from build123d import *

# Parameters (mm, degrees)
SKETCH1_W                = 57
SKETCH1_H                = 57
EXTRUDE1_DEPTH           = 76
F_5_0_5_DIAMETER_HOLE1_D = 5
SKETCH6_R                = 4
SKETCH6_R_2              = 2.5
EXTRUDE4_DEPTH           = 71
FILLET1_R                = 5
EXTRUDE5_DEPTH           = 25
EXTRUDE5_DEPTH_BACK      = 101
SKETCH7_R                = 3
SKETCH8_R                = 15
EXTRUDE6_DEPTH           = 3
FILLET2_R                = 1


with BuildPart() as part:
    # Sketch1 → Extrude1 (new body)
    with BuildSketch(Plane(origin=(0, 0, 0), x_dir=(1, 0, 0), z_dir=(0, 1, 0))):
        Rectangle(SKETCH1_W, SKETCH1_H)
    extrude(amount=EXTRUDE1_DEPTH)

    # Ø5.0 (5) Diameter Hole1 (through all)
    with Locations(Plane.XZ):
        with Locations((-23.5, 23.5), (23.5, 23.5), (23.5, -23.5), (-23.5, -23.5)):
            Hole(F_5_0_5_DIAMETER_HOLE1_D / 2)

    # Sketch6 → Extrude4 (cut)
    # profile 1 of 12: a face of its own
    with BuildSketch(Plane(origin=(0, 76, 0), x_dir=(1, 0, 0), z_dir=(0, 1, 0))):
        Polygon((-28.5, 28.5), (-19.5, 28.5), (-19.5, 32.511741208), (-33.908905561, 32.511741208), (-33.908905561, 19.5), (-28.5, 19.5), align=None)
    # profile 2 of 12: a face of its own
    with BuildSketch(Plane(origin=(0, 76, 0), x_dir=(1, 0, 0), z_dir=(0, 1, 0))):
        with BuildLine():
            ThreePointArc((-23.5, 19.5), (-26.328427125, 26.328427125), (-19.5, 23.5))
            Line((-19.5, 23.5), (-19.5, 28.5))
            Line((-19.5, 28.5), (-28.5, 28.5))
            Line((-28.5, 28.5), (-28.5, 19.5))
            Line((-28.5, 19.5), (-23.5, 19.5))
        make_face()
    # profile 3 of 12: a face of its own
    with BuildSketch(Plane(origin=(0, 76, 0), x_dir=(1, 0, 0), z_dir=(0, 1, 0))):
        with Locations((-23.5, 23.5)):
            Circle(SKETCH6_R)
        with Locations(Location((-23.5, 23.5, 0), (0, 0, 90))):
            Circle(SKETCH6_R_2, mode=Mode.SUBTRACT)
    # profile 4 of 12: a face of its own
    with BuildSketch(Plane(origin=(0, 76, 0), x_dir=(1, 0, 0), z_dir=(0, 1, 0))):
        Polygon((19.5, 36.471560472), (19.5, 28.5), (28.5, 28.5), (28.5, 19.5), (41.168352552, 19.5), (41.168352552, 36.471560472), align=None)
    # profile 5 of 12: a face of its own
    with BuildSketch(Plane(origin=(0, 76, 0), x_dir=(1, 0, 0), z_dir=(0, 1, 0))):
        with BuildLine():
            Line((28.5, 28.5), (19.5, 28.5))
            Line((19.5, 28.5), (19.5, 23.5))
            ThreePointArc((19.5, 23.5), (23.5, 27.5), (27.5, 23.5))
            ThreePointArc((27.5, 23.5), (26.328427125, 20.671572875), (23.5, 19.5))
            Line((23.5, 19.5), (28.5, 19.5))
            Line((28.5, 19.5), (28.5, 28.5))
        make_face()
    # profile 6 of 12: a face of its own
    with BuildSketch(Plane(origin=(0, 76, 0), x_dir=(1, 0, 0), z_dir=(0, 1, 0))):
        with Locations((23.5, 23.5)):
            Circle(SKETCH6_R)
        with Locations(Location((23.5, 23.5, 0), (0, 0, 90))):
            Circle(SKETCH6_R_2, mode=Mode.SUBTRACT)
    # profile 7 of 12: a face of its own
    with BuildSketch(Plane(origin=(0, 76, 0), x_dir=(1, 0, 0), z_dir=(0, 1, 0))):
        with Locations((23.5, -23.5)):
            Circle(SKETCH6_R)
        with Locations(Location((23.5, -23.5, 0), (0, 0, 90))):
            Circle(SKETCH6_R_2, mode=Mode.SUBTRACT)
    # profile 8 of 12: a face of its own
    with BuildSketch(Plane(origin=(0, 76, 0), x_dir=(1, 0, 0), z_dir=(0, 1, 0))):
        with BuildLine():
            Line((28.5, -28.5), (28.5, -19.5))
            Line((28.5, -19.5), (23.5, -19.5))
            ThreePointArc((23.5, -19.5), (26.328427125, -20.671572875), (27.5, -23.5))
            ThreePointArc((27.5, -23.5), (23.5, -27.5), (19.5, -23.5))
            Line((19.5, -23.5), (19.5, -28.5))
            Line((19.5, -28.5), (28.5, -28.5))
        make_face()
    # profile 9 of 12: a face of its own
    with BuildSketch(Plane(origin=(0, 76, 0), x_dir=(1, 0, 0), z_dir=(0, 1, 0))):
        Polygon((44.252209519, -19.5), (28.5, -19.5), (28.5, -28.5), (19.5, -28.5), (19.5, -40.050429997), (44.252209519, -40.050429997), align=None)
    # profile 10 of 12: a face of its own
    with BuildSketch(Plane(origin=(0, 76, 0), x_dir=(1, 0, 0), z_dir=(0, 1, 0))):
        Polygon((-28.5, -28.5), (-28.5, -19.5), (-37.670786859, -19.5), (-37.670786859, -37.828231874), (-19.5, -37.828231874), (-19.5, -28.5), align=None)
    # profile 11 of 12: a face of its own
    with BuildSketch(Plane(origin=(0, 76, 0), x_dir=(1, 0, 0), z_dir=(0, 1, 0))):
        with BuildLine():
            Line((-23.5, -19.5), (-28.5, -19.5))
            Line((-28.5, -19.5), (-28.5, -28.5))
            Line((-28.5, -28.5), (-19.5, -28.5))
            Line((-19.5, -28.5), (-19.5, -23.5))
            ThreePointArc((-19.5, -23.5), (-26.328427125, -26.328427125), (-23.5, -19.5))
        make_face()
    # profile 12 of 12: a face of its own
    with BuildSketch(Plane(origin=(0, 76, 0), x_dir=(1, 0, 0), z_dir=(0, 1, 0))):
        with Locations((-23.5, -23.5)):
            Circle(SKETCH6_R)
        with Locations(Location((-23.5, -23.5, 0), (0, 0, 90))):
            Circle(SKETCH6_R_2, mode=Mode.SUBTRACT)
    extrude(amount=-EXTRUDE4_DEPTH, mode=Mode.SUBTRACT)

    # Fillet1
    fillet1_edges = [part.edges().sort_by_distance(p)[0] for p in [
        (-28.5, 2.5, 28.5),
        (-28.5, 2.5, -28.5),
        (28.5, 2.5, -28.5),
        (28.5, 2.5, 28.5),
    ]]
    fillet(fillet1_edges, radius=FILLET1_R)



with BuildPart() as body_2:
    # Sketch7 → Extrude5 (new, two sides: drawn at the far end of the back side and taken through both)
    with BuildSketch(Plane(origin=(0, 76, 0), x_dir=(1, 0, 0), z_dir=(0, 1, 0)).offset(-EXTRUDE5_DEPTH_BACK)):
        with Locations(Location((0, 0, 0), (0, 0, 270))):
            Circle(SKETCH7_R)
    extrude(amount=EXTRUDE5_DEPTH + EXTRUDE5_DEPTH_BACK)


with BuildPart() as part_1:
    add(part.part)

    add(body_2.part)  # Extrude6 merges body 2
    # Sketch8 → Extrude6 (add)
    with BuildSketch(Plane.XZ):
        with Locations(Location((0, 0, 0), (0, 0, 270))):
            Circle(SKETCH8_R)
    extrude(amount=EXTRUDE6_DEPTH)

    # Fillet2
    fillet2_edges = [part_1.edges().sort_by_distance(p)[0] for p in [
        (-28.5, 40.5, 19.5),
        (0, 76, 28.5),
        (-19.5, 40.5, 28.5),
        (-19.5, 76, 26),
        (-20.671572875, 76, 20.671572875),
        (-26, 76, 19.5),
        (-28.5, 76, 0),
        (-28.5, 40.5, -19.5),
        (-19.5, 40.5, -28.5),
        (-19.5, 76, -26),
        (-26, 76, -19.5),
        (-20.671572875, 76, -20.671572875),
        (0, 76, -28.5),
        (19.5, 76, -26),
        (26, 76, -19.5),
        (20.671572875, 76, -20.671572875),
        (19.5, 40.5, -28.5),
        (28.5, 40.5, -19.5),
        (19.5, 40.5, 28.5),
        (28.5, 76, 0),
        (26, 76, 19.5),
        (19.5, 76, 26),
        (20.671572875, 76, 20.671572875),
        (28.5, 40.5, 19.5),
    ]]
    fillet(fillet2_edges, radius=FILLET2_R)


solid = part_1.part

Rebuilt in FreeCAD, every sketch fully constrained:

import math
import FreeCAD as App
import Part
import Sketcher

V = App.Vector


def edges_at(feature, points):
    """Names of the edges that pass closest to the given points."""
    edges = feature.Shape.Edges
    near = lambda p: min(range(len(edges)), key=lambda i: edges[i].distToShape(Part.Vertex(*p))[0])
    return sorted({f"Edge{near(p) + 1}" for p in points})

doc = App.newDocument("Part")
body = doc.addObject("PartDesign::Body", "Body")

# Sketch on XZ plane
sketch1 = doc.addObject("Sketcher::SketchObject", "Sketch")
body.addObject(sketch1)
sketch1.AttachmentSupport = (doc.XZ_Plane, [""])
sketch1.MapMode = "FlatFace"
sketch1.addGeometry([
    Part.LineSegment(V(-28, -28, 0), V(-28, 28, 0)),
    Part.LineSegment(V(-28, 28, 0), V(28, 28, 0)),
    Part.LineSegment(V(28, 28, 0), V(28, -28, 0)),
    Part.LineSegment(V(28, -28, 0), V(-28, -28, 0)),
], False)
sketch1.addConstraint([
    Sketcher.Constraint("Coincident", 0, 2, 1, 1),
    Sketcher.Constraint("Coincident", 1, 2, 2, 1),
    Sketcher.Constraint("Coincident", 2, 2, 3, 1),
    Sketcher.Constraint("Coincident", 3, 2, 0, 1),
    Sketcher.Constraint("Vertical", 0),
    Sketcher.Constraint("Horizontal", 1),
    Sketcher.Constraint("Vertical", 2),
    Sketcher.Constraint("Horizontal", 3),
    Sketcher.Constraint("Symmetric", 0, 2, 2, 2, -1, 1),
    Sketcher.Constraint("Equal", 3, 0),
    Sketcher.Constraint("DistanceX", 1, 1, 1, 2, 57.0),
])
pad1 = doc.addObject("PartDesign::Pad", "Pad")
body.addObject(pad1)
pad1.Profile = sketch1
pad1.Length = 76
pad1.Reversed = True

# Sketch on XZ plane
sketch2 = doc.addObject("Sketcher::SketchObject", "Sketch001")
body.addObject(sketch2)
sketch2.AttachmentSupport = (doc.XZ_Plane, [""])
sketch2.MapMode = "FlatFace"
sketch2.addGeometry([
    Part.Circle(V(-23.5, 23.5, 0), V(0, 0, 1), 2.5),
    Part.Circle(V(23.5, 23.5, 0), V(0, 0, 1), 2.5),
    Part.Circle(V(23.5, -23.5, 0), V(0, 0, 1), 2.5),
    Part.Circle(V(-23.5, -23.5, 0), V(0, 0, 1), 2.5),
], False)
sketch2.addConstraint([
    Sketcher.Constraint("Equal", 0, 1),
    Sketcher.Constraint("Equal", 1, 2),
    Sketcher.Constraint("Equal", 2, 3),
    Sketcher.Constraint("Symmetric", 0, 3, 2, 3, -1, 1),
    Sketcher.Constraint("Symmetric", 1, 3, 3, 3, -1, 1),
    Sketcher.Constraint("Symmetric", 0, 3, 1, 3, -2),
    Sketcher.Constraint("Diameter", 0, 5.0),
    Sketcher.Constraint("DistanceX", 0, 3, 1, 3, 47.0),
    Sketcher.Constraint("DistanceY", 2, 3, 1, 3, 47.0),
])
doc.recompute()
hole = doc.addObject("PartDesign::Hole", "Hole")
body.addObject(hole)
hole.Profile = sketch2
hole.ThreadType = "None"
hole.Diameter = 5
hole.DepthType = "ThroughAll"

# Sketch on XZ plane
sketch3 = doc.addObject("Sketcher::SketchObject", "Sketch002")
body.addObject(sketch3)
sketch3.AttachmentSupport = (doc.XZ_Plane, [""])
sketch3.MapMode = "FlatFace"
sketch3.AttachmentOffset = App.Placement(V(0, 0, -76), App.Rotation())
sketch3.addGeometry([
    Part.LineSegment(V(-19.5, -32.5, 0), V(-33.9, -32.5, 0)),  # 0
    Part.LineSegment(V(-33.9, -32.5, 0), V(-33.9, -19.5, 0)),  # 1
    Part.LineSegment(V(-33.9, -19.5, 0), V(-23.5, -19.5, 0)),  # 2
    Part.ArcOfCircle(Part.Circle(V(-23.5, -23.5, 0), V(0, 0, 1), 4), math.radians(0), math.radians(90)),  # 3
    Part.LineSegment(V(-19.5, -23.5, 0), V(-19.5, -32.5, 0)),  # 4
    Part.Circle(V(-23.5, -23.5, 0), V(0, 0, 1), 2.5),  # 5
    Part.LineSegment(V(19.5, -36.5, 0), V(19.5, -23.5, 0)),  # 6
    Part.ArcOfCircle(Part.Circle(V(23.5, -23.5, 0), V(0, 0, 1), 4), math.radians(90), math.radians(180)),  # 7
    Part.LineSegment(V(23.5, -19.5, 0), V(41.2, -19.5, 0)),  # 8
    Part.LineSegment(V(41.2, -19.5, 0), V(41.2, -36.5, 0)),  # 9
    Part.LineSegment(V(41.2, -36.5, 0), V(19.5, -36.5, 0)),  # 10
    Part.Circle(V(23.5, -23.5, 0), V(0, 0, 1), 2.5),  # 11
    Part.ArcOfCircle(Part.Circle(V(23.5, 23.5, 0), V(0, 0, 1), 4), math.radians(180), math.radians(270)),  # 12
    Part.LineSegment(V(19.5, 23.5, 0), V(19.5, 40.1, 0)),  # 13
    Part.LineSegment(V(19.5, 40.1, 0), V(44.3, 40.1, 0)),  # 14
    Part.LineSegment(V(44.3, 40.1, 0), V(44.3, 19.5, 0)),  # 15
    Part.LineSegment(V(44.3, 19.5, 0), V(23.5, 19.5, 0)),  # 16
    Part.Circle(V(23.5, 23.5, 0), V(0, 0, 1), 2.5),  # 17
    Part.LineSegment(V(-37.7, 19.5, 0), V(-37.7, 37.8, 0)),  # 18
    Part.LineSegment(V(-37.7, 37.8, 0), V(-19.5, 37.8, 0)),  # 19
    Part.LineSegment(V(-19.5, 37.8, 0), V(-19.5, 23.5, 0)),  # 20
    Part.ArcOfCircle(Part.Circle(V(-23.5, 23.5, 0), V(0, 0, 1), 4), math.radians(-90), math.radians(0)),  # 21
    Part.LineSegment(V(-23.5, 19.5, 0), V(-37.7, 19.5, 0)),  # 22
    Part.Circle(V(-23.5, 23.5, 0), V(0, 0, 1), 2.5),  # 23
], False)
sketch3.addConstraint([
    Sketcher.Constraint("Coincident", 0, 2, 1, 1),
    Sketcher.Constraint("Coincident", 1, 2, 2, 1),
    Sketcher.Constraint("Tangent", 2, 2, 3, 2),
    Sketcher.Constraint("Tangent", 3, 1, 4, 1),
    Sketcher.Constraint("Coincident", 4, 2, 0, 1),
    Sketcher.Constraint("Tangent", 6, 2, 7, 2),
    Sketcher.Constraint("Tangent", 7, 1, 8, 1),
    Sketcher.Constraint("Coincident", 8, 2, 9, 1),
    Sketcher.Constraint("Coincident", 9, 2, 10, 1),
    Sketcher.Constraint("Coincident", 10, 2, 6, 1),
    Sketcher.Constraint("Tangent", 12, 1, 13, 1),
    Sketcher.Constraint("Coincident", 13, 2, 14, 1),
    Sketcher.Constraint("Coincident", 14, 2, 15, 1),
    Sketcher.Constraint("Coincident", 15, 2, 16, 1),
    Sketcher.Constraint("Tangent", 16, 2, 12, 2),
    Sketcher.Constraint("Coincident", 18, 2, 19, 1),
    Sketcher.Constraint("Coincident", 19, 2, 20, 1),
    Sketcher.Constraint("Tangent", 20, 2, 21, 2),
    Sketcher.Constraint("Tangent", 21, 1, 22, 1),
    Sketcher.Constraint("Coincident", 22, 2, 18, 1),
    Sketcher.Constraint("Horizontal", 0),
    Sketcher.Constraint("Vertical", 1),
    Sketcher.Constraint("Horizontal", 2),
    Sketcher.Constraint("Vertical", 4),
    Sketcher.Constraint("Vertical", 6),
    Sketcher.Constraint("Horizontal", 8),
    Sketcher.Constraint("Vertical", 9),
    Sketcher.Constraint("Horizontal", 10),
    Sketcher.Constraint("Vertical", 13),
    Sketcher.Constraint("Horizontal", 14),
    Sketcher.Constraint("Vertical", 15),
    Sketcher.Constraint("Horizontal", 16),
    Sketcher.Constraint("Vertical", 18),
    Sketcher.Constraint("Horizontal", 19),
    Sketcher.Constraint("Vertical", 20),
    Sketcher.Constraint("Horizontal", 22),
    Sketcher.Constraint("Coincident", 5, 3, 3, 3),
    Sketcher.Constraint("Coincident", 11, 3, 7, 3),
    Sketcher.Constraint("Coincident", 17, 3, 12, 3),
    Sketcher.Constraint("Coincident", 23, 3, 21, 3),
    Sketcher.Constraint("Equal", 3, 7),
    Sketcher.Constraint("Equal", 5, 11),
    Sketcher.Constraint("Equal", 7, 12),
    Sketcher.Constraint("Equal", 11, 17),
    Sketcher.Constraint("Equal", 12, 21),
    Sketcher.Constraint("Equal", 17, 23),
    Sketcher.Constraint("Symmetric", 3, 3, 12, 3, -1, 1),
    Sketcher.Constraint("Symmetric", 7, 3, 21, 3, -1, 1),
    Sketcher.Constraint("Symmetric", 3, 3, 7, 3, -2),
    Sketcher.Constraint("Diameter", 5, 5.0),
    Sketcher.Constraint("Radius", 3, 4.0),
    Sketcher.Constraint("DistanceX", 3, 3, 7, 3, 47.0),
    Sketcher.Constraint("DistanceY", 7, 3, 12, 3, 47.0),
    Sketcher.Constraint("DistanceX", 14, 1, 14, 2, 24.75221),
    Sketcher.Constraint("DistanceY", 1, 1, 1, 2, 13.011741),
    Sketcher.Constraint("DistanceY", 6, 1, 6, 2, 12.97156),
    Sketcher.Constraint("DistanceY", 13, 1, 13, 2, 16.55043),
    Sketcher.Constraint("DistanceY", 18, 1, 18, 2, 18.328232),
    Sketcher.Constraint("DistanceX", 0, 2, 0, 1, 14.408906),
    Sketcher.Constraint("DistanceX", 8, 1, 8, 2, 17.668353),
    Sketcher.Constraint("DistanceX", 19, 1, 19, 2, 18.170787),
])
pocket1 = doc.addObject("PartDesign::Pocket", "Pocket")
body.addObject(pocket1)
pocket1.Profile = sketch3
pocket1.Length = 71
pocket1.Reversed = True
doc.recompute()

fillet = doc.addObject("PartDesign::Fillet", "Fillet")
body.addObject(fillet)
fillet.Base = (pocket1, edges_at(pocket1, [
    (-28.5, 2.5, 28.5),
    (-28.5, 2.5, -28.5),
    (28.5, 2.5, -28.5),
    (28.5, 2.5, 28.5),
]))
fillet.Radius = 5
body2 = doc.addObject("PartDesign::Body", "Body001")

# Sketch on XZ plane
sketch4 = doc.addObject("Sketcher::SketchObject", "Sketch003")
body2.addObject(sketch4)
sketch4.AttachmentSupport = (doc.getObject("XZ_Plane001"), [""])
sketch4.MapMode = "FlatFace"
sketch4.AttachmentOffset = App.Placement(V(0, 0, -76), App.Rotation())
sketch4.addGeometry(Part.Circle(V(0, 0, 0), V(0, 0, 1), 3), False)
sketch4.addConstraint([
    Sketcher.Constraint("Coincident", 0, 3, -1, 1),
    Sketcher.Constraint("Diameter", 0, 6.0),
])
pad2 = doc.addObject("PartDesign::Pad", "Pad001")
body2.addObject(pad2)
pad2.Profile = sketch4
pad2.Type = "TwoLengths"
pad2.Length = 25
pad2.Length2 = 101
pad2.Reversed = True
doc.recompute()

boolean = doc.addObject("PartDesign::Boolean", "Boolean")
body.addObject(boolean)
boolean.Type = "Fuse"
boolean.addObjects([body2])

# Sketch on XZ plane
sketch5 = doc.addObject("Sketcher::SketchObject", "Sketch004")
body.addObject(sketch5)
sketch5.AttachmentSupport = (doc.XZ_Plane, [""])
sketch5.MapMode = "FlatFace"
sketch5.addGeometry(Part.Circle(V(0, 0, 0), V(0, 0, 1), 15), False)
sketch5.addConstraint([
    Sketcher.Constraint("Coincident", 0, 3, -1, 1),
    Sketcher.Constraint("Diameter", 0, 30.0),
])
pad3 = doc.addObject("PartDesign::Pad", "Pad002")
body.addObject(pad3)
pad3.Profile = sketch5
pad3.Length = 3
doc.recompute()

fillet2 = doc.addObject("PartDesign::Fillet", "Fillet001")
body.addObject(fillet2)
fillet2.Base = (pad3, edges_at(pad3, [
    (-28.5, 40.5, 19.5),
    (0, 76, 28.5),
    (-19.5, 40.5, 28.5),
    (-19.5, 76, 26),
    (-20.672, 76, 20.672),
    (-26, 76, 19.5),
    (-28.5, 76, 0),
    (-28.5, 40.5, -19.5),
    (-19.5, 40.5, -28.5),
    (-19.5, 76, -26),
    (-26, 76, -19.5),
    (-20.672, 76, -20.672),
    (0, 76, -28.5),
    (19.5, 76, -26),
    (26, 76, -19.5),
    (20.672, 76, -20.672),
    (19.5, 40.5, -28.5),
    (28.5, 40.5, -19.5),
    (19.5, 40.5, 28.5),
    (28.5, 76, 0),
    (26, 76, 19.5),
    (19.5, 76, 26),
    (20.672, 76, 20.672),
    (28.5, 40.5, 19.5),
]))
fillet2.Radius = 1

doc.recompute()
